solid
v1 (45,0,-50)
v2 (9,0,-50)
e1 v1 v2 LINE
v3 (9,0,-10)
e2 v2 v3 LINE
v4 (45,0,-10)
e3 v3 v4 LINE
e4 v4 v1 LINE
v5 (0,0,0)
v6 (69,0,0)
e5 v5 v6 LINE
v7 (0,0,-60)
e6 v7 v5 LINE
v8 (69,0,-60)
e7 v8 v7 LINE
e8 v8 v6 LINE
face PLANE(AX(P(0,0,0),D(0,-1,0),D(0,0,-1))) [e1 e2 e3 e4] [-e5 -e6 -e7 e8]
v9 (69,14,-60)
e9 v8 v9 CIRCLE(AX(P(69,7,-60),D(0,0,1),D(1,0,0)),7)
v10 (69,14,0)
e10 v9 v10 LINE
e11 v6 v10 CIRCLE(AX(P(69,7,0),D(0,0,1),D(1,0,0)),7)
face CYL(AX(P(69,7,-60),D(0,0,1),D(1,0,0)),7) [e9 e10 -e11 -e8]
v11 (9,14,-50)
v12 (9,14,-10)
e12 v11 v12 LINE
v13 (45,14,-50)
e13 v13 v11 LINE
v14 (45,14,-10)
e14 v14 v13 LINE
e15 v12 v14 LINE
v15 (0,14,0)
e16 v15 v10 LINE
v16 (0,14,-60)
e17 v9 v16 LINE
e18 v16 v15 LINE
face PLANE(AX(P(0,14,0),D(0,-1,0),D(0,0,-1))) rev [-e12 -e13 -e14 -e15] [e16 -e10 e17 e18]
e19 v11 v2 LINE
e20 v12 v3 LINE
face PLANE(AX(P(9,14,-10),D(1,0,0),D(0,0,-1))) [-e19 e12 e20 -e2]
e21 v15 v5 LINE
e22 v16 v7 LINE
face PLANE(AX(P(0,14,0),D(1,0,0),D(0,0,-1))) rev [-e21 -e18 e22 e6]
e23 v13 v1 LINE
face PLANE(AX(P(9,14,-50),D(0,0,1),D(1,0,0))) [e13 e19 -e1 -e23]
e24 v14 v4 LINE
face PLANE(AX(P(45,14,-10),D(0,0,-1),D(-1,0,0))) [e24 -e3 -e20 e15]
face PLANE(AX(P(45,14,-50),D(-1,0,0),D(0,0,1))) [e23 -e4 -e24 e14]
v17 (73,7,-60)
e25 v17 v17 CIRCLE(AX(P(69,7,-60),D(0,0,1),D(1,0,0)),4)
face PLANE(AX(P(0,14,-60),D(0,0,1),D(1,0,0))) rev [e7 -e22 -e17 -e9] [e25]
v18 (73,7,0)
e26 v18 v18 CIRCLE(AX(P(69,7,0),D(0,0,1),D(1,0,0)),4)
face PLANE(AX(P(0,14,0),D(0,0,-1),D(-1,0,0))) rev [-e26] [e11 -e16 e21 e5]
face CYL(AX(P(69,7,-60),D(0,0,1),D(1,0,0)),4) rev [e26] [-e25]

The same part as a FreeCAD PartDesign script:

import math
import FreeCAD as App
import Part
import Sketcher
from FreeCAD import Vector


def add_polygon(sketch, points):
    """Adds a closed chain of lines whose ends are joined by coincident constraints."""
    first, n = sketch.GeometryCount, len(points)
    for a, b in zip(points, points[1:] + points[:1]):
        sketch.addGeometry(Part.LineSegment(App.Vector(*a, 0), App.Vector(*b, 0)), False)
    for i in range(n):
        sketch.addConstraint(Sketcher.Constraint("Coincident", first + i, 2, first + (i + 1) % n, 1))

doc = App.newDocument("Part")
body = doc.addObject("PartDesign::Body", "Body")

# Sketch on XZ plane
sketch1 = body.newObject("Sketcher::SketchObject", "Sketch")
sketch1.AttachmentSupport = (doc.getObject("XZ_Plane"), [""])
sketch1.MapMode = "FlatFace"
add_polygon(sketch1, [(0, -60), (0, 0), (55, 0), (55, -60)])  # lines 0-3
add_polygon(sketch1, [(45, -10), (9, -10), (9, -50), (45, -50)])  # lines 4-7
sketch1.addConstraint([
    Sketcher.Constraint("Vertical", 0),
    Sketcher.Constraint("Horizontal", 1),
    Sketcher.Constraint("Vertical", 2),
    Sketcher.Constraint("Horizontal", 3),
    Sketcher.Constraint("Horizontal", 4),
    Sketcher.Constraint("Vertical", 5),
    Sketcher.Constraint("Horizontal", 6),
    Sketcher.Constraint("Vertical", 7),
    Sketcher.Constraint("Coincident", 0, 2, -1, 1),
    Sketcher.Constraint("DistanceX", 1, 1, 1, 2, 55.0),
    Sketcher.Constraint("DistanceX", 4, 2, 4, 1, 36.0),
    Sketcher.Constraint("DistanceY", 0, 1, 0, 2, 60.0),
    Sketcher.Constraint("DistanceY", 5, 2, 5, 1, 40.0),
    Sketcher.Constraint("DistanceX", -1, 1, 4, 2, 9.0),
    Sketcher.Constraint("DistanceY", 4, 2, -1, 1, 10.0),
])
pad1 = body.newObject("PartDesign::Pad", "Pad")
pad1.Profile = sketch1
pad1.Length = 14
pad1.Reversed = True

# Sketch on XY plane
sketch2 = body.newObject("Sketcher::SketchObject", "Sketch001")
sketch2.AttachmentSupport = (doc.getObject("XY_Plane"), [""])
sketch2.MapMode = "FlatFace"
sketch2.addGeometry([
    Part.LineSegment(Vector(69, 14, 0), Vector(55, 14, 0)),  # 0
    Part.LineSegment(Vector(55, 14, 0), Vector(55, 0, 0)),  # 1
    Part.LineSegment(Vector(55, 0, 0), Vector(69, 0, 0)),  # 2
    Part.ArcOfCircle(Part.Circle(Vector(69, 7, 0), Vector(0, 0, 1), 7), math.radians(-90), math.radians(90)),  # 3
    Part.Circle(Vector(69, 7, 0), Vector(0, 0, 1), 4),  # 4
], False)
sketch2.addConstraint([
    Sketcher.Constraint("Coincident", 0, 2, 1, 1),
    Sketcher.Constraint("Coincident", 1, 2, 2, 1),
    Sketcher.Constraint("Tangent", 2, 2, 3, 1),
    Sketcher.Constraint("Tangent", 3, 2, 0, 1),
    Sketcher.Constraint("Horizontal", 0),
    Sketcher.Constraint("Vertical", 1),
    Sketcher.Constraint("Horizontal", 2),
    Sketcher.Constraint("Coincident", 4, 3, 3, 3),
    Sketcher.Constraint("PointOnObject", 1, 2, -1),
    Sketcher.Constraint("Equal", 2, 1),
    Sketcher.Constraint("Diameter", 4, 8.0),
    Sketcher.Constraint("Radius", 3, 7.0),
    Sketcher.Constraint("DistanceX", -1, 1, 3, 3, 69.0),
])
pad2 = body.newObject("PartDesign::Pad", "Pad001")
pad2.Profile = sketch2
pad2.Length = 60
pad2.Reversed = True

doc.recompute()
